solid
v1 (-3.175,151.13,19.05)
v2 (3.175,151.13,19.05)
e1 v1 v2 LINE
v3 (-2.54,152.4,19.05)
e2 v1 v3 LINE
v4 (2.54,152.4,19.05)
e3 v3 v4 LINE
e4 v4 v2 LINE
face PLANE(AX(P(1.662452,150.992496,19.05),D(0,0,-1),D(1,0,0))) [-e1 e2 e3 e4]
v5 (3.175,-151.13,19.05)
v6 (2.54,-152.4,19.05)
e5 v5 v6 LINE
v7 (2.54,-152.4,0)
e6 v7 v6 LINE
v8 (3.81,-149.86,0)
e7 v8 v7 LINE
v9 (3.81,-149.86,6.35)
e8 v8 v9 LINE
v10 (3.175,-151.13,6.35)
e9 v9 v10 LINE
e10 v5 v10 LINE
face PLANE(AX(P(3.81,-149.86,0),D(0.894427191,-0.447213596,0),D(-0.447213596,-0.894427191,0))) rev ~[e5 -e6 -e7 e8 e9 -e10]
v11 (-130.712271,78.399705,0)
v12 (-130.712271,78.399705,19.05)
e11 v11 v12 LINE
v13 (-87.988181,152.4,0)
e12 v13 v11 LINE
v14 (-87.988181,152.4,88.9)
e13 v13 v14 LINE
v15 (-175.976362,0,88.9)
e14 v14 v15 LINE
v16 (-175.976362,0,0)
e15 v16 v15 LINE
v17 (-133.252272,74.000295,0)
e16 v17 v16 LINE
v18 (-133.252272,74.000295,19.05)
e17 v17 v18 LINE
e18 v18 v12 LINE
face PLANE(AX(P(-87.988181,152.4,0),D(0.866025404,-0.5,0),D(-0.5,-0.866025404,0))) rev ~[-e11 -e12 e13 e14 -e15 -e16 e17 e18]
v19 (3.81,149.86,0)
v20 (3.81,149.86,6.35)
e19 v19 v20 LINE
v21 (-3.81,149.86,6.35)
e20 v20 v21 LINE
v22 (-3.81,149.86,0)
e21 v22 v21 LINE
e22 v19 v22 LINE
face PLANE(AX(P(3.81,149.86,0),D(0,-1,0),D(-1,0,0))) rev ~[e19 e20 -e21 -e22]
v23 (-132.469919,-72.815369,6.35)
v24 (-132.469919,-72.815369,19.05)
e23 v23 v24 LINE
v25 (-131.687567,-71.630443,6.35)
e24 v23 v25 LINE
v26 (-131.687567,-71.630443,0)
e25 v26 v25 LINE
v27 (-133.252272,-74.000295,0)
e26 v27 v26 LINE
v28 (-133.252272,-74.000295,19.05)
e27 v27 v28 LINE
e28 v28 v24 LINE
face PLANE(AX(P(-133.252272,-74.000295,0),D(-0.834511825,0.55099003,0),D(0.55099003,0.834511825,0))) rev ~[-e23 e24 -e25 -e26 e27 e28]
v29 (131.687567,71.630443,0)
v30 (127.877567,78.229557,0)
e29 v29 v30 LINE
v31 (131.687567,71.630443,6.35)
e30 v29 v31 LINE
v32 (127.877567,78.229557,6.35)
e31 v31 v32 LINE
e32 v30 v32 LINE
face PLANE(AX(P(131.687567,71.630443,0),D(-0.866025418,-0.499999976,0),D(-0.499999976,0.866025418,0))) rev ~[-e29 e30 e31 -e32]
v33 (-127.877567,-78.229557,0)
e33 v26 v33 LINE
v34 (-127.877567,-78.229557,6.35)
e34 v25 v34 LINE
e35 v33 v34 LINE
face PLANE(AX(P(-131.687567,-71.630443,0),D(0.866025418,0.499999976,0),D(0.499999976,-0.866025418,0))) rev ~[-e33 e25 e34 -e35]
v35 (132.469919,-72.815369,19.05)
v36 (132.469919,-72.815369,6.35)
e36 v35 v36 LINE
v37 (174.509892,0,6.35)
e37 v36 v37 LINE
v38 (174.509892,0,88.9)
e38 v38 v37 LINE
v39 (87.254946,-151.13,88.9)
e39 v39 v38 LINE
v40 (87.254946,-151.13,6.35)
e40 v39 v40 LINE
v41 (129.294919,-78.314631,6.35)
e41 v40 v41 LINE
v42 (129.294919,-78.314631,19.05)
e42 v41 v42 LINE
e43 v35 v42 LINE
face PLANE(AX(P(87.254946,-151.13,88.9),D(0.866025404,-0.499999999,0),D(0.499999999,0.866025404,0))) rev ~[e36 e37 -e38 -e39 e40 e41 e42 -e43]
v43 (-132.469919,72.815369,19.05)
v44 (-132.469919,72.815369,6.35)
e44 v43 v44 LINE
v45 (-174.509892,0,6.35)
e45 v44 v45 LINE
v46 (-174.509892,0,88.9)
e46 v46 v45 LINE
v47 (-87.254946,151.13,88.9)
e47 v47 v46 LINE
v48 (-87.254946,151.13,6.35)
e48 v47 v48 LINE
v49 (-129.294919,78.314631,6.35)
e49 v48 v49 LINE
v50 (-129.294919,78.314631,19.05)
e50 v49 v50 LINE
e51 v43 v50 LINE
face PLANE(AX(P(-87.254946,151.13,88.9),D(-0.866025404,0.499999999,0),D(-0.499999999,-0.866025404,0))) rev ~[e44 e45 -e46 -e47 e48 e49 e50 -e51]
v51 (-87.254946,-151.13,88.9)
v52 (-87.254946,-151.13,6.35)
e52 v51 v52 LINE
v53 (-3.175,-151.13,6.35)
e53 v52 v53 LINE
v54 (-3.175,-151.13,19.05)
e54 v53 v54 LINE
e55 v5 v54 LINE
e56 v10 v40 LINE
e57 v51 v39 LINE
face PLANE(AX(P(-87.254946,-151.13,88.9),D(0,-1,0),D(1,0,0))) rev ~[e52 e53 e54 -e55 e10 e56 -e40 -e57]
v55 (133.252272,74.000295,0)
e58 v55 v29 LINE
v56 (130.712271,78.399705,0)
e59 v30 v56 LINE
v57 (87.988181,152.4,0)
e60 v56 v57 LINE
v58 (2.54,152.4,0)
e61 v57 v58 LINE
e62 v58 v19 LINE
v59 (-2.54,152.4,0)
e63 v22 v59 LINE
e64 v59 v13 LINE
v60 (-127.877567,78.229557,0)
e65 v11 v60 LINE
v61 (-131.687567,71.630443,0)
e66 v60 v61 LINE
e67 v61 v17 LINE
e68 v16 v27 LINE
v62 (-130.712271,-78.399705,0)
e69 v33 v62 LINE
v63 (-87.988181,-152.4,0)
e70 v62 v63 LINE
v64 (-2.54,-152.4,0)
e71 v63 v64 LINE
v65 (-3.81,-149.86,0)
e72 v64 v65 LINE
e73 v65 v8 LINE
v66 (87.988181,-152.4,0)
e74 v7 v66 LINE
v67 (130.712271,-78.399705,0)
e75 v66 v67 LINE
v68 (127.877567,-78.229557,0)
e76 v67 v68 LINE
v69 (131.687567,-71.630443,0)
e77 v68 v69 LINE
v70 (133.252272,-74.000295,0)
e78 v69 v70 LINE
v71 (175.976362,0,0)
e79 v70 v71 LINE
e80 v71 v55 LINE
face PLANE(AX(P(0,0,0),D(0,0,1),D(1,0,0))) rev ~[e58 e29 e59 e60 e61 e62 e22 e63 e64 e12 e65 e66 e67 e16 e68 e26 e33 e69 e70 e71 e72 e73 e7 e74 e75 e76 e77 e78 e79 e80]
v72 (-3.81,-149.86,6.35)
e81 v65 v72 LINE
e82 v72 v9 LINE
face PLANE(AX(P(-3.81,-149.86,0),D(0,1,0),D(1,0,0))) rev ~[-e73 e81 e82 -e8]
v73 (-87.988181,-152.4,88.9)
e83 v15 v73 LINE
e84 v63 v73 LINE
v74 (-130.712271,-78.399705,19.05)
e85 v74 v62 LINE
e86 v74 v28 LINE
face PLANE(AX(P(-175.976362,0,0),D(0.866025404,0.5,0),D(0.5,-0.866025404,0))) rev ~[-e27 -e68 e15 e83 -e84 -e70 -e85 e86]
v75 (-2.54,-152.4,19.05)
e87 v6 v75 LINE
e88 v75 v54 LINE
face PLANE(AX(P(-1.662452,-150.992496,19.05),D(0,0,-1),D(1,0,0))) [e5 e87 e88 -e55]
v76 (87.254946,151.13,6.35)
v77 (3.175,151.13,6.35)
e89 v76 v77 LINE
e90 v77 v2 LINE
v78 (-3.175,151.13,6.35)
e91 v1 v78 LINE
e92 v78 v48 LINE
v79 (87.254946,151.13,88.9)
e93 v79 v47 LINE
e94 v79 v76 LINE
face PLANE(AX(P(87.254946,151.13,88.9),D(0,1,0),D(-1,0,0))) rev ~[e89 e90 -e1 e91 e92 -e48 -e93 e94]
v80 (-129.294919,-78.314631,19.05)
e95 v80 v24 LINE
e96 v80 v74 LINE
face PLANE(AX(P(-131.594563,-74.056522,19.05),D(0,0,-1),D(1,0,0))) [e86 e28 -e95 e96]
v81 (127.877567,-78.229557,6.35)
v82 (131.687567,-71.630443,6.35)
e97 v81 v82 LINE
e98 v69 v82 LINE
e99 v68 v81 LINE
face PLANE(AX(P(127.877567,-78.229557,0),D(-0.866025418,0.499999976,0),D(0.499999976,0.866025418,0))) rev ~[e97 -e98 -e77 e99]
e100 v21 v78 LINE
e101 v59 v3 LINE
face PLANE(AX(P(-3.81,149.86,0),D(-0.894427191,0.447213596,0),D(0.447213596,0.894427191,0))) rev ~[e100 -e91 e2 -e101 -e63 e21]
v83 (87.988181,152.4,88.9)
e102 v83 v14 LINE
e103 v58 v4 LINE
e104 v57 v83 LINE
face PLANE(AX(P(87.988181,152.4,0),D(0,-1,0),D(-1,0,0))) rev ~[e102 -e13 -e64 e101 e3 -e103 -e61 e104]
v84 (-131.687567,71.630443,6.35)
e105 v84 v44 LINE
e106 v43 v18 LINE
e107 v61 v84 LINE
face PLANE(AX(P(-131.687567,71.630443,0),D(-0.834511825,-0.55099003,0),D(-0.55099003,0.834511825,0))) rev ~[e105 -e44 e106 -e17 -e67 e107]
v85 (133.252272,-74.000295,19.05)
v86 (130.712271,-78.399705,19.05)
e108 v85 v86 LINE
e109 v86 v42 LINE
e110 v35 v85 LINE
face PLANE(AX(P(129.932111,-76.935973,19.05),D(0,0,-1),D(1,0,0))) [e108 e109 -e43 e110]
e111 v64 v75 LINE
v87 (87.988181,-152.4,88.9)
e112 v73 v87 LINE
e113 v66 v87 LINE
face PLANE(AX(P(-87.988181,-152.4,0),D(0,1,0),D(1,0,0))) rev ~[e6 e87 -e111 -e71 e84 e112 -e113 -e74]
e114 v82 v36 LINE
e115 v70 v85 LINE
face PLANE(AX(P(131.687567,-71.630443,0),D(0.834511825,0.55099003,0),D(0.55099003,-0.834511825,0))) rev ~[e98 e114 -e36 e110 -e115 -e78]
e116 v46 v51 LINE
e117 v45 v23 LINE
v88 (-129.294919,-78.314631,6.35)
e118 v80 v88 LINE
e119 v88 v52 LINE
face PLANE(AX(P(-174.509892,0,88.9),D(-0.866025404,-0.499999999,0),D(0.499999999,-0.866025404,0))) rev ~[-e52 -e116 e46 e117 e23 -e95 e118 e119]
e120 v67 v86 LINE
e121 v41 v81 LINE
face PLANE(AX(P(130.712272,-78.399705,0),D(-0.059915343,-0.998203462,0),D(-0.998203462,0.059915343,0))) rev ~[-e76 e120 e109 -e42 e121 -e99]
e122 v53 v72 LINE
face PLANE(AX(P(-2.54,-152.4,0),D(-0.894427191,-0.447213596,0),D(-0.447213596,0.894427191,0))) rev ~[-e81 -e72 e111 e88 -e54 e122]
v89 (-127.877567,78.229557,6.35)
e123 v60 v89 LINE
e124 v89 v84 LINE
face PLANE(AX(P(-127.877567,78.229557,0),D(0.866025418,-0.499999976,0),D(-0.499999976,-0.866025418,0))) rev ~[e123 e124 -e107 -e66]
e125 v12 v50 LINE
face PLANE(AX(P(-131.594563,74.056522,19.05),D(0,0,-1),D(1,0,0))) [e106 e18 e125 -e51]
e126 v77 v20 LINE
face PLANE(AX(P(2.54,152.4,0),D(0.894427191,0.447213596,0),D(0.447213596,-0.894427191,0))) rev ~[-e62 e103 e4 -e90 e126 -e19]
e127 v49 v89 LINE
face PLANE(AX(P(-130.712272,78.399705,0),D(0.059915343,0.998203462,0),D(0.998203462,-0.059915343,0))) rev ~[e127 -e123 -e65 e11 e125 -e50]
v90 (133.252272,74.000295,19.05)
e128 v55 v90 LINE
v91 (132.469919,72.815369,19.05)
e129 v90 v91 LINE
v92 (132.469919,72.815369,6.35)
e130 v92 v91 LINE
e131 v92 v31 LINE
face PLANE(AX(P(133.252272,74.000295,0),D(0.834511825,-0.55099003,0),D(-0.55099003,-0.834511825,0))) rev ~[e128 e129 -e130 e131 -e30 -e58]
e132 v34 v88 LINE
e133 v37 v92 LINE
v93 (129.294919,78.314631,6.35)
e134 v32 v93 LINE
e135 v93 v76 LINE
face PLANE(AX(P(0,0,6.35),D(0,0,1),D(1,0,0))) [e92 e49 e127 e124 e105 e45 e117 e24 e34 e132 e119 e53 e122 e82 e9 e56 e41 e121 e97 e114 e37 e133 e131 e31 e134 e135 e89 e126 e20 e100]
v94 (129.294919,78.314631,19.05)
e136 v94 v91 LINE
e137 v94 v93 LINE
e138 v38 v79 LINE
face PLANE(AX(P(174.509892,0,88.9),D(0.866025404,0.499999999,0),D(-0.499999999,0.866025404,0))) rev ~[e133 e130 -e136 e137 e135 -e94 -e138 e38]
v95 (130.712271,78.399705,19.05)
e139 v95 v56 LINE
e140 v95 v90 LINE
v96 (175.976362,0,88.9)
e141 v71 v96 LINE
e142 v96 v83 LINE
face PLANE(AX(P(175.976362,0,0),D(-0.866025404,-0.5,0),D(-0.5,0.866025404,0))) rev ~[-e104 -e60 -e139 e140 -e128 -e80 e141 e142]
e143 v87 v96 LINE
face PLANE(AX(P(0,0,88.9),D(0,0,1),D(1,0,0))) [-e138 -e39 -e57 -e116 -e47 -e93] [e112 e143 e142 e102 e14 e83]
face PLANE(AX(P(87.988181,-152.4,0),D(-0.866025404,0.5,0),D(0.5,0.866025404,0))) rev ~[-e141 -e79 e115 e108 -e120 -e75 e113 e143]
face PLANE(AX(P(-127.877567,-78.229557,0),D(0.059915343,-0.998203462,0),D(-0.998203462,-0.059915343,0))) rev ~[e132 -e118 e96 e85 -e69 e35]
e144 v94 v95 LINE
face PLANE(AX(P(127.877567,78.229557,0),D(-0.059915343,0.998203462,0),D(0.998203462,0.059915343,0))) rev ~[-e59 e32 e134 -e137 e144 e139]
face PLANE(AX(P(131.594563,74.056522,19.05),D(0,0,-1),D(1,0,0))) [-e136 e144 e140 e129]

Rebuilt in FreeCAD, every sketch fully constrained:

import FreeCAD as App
import Part
import Sketcher
Q = App.Units.Quantity

doc = App.newDocument("Part")
params = doc.addObject("Spreadsheet::Sheet", "Params")
for row, (alias, value) in enumerate([
    ("pad1_length", "3.5 in"),
    ("sketch2_width", "0.3 in"),
    ("sketch2_width2", "0.2 in"),
    ("sketch2_length", "0.2 in"),
    ("sketch2_length2", "0.3 in"),
    ("pocket1_length", "0.75 in"),
    ("pocket2_length", "3.25 in"),
], start=1):
    params.set(f"A{row}", alias)
    params.set(f"B{row}", "=" + value)
    params.setAlias(f"B{row}", alias)

body = doc.addObject("PartDesign::Body", "Body")

# Sketch on XY plane
sketch1 = body.newObject("Sketcher::SketchObject", "Sketch")
sketch1.AttachmentSupport = (doc.getObject("XY_Plane"), [""])
sketch1.MapMode = "FlatFace"
sketch1.addGeometry(Part.LineSegment(App.Vector(-87.988181, -152.4, 0), App.Vector(87.988181, -152.4, 0)), False)
sketch1.addGeometry(Part.LineSegment(App.Vector(87.988181, -152.4, 0), App.Vector(175.976362, 0, 0)), False)
sketch1.addGeometry(Part.LineSegment(App.Vector(175.976362, 0, 0), App.Vector(87.988181, 152.4, 0)), False)
sketch1.addGeometry(Part.LineSegment(App.Vector(87.988181, 152.4, 0), App.Vector(-87.988181, 152.4, 0)), False)
sketch1.addGeometry(Part.LineSegment(App.Vector(-87.988181, 152.4, 0), App.Vector(-175.976362, 0, 0)), False)
sketch1.addGeometry(Part.LineSegment(App.Vector(-175.976362, 0, 0), App.Vector(-87.988181, -152.4, 0)), False)
sketch1.addConstraint(Sketcher.Constraint("Coincident", 0, 2, 1, 1))
sketch1.addConstraint(Sketcher.Constraint("Coincident", 1, 2, 2, 1))
sketch1.addConstraint(Sketcher.Constraint("Coincident", 2, 2, 3, 1))
sketch1.addConstraint(Sketcher.Constraint("Coincident", 3, 2, 4, 1))
sketch1.addConstraint(Sketcher.Constraint("Coincident", 4, 2, 5, 1))
sketch1.addConstraint(Sketcher.Constraint("Coincident", 5, 2, 0, 1))
sketch1.addConstraint(Sketcher.Constraint("Horizontal", 0))
sketch1.addConstraint(Sketcher.Constraint("Horizontal", 3))
sketch1.addConstraint(Sketcher.Constraint("Symmetric", 0, 2, 3, 2, -1, 1))
sketch1.addConstraint(Sketcher.Constraint("Symmetric", 1, 2, 4, 2, -1, 1))
sketch1.addConstraint(Sketcher.Constraint("PointOnObject", 1, 2, -1))
sketch1.addConstraint(Sketcher.Constraint("Parallel", 2, 5))
sketch1.addConstraint(Sketcher.Constraint("Vertical", 0, 2, 2, 2))
sketch1.addConstraint(Sketcher.Constraint("DistanceY", 0, 2, -1, 1, Q("6 in")))
sketch1.addConstraint(Sketcher.Constraint("Angle", 1, Q("60 deg")))
sketch1.addConstraint(Sketcher.Constraint("DistanceX", 0, 1, 0, 2, Q("175.976362 mm")))
pad1 = body.newObject("PartDesign::Pad", "Pad")
pad1.Profile = sketch1
pad1.setExpression("Length", "Params.pad1_length")

# Sketch on XY plane
sketch2 = body.newObject("Sketcher::SketchObject", "Sketch001")
sketch2.AttachmentSupport = (doc.getObject("XY_Plane"), [""])
sketch2.MapMode = "FlatFace"
sketch2.addGeometry(Part.LineSegment(App.Vector(-131.687567, 71.630443, 0), App.Vector(-133.252272, 74.000295, 0)), False)
sketch2.addGeometry(Part.LineSegment(App.Vector(-133.252272, 74.000295, 0), App.Vector(-130.712272, 78.399705, 0)), False)
sketch2.addGeometry(Part.LineSegment(App.Vector(-130.712272, 78.399705, 0), App.Vector(-127.877567, 78.229557, 0)), False)
sketch2.addGeometry(Part.LineSegment(App.Vector(-127.877567, 78.229557, 0), App.Vector(-131.687567, 71.630443, 0)), False)
sketch2.addGeometry(Part.LineSegment(App.Vector(-131.687567, -71.630443, 0), App.Vector(-127.877567, -78.229557, 0)), False)
sketch2.addGeometry(Part.LineSegment(App.Vector(-127.877567, -78.229557, 0), App.Vector(-130.712272, -78.399705, 0)), False)
sketch2.addGeometry(Part.LineSegment(App.Vector(-130.712272, -78.399705, 0), App.Vector(-133.252272, -74.000295, 0)), False)
sketch2.addGeometry(Part.LineSegment(App.Vector(-133.252272, -74.000295, 0), App.Vector(-131.687567, -71.630443, 0)), False)
sketch2.addGeometry(Part.LineSegment(App.Vector(-2.54, -152.4, 0), App.Vector(-3.81, -149.86, 0)), False)
sketch2.addGeometry(Part.LineSegment(App.Vector(-3.81, -149.86, 0), App.Vector(3.81, -149.86, 0)), False)
sketch2.addGeometry(Part.LineSegment(App.Vector(3.81, -149.86, 0), App.Vector(2.54, -152.4, 0)), False)
sketch2.addGeometry(Part.LineSegment(App.Vector(2.54, -152.4, 0), App.Vector(-2.54, -152.4, 0)), False)
sketch2.addGeometry(Part.LineSegment(App.Vector(127.877567, -78.229557, 0), App.Vector(131.687567, -71.630443, 0)), False)
sketch2.addGeometry(Part.LineSegment(App.Vector(131.687567, -71.630443, 0), App.Vector(133.252272, -74.000295, 0)), False)
sketch2.addGeometry(Part.LineSegment(App.Vector(133.252272, -74.000295, 0), App.Vector(130.712272, -78.399705, 0)), False)
sketch2.addGeometry(Part.LineSegment(App.Vector(130.712272, -78.399705, 0), App.Vector(127.877567, -78.229557, 0)), False)
sketch2.addGeometry(Part.LineSegment(App.Vector(131.687567, 71.630443, 0), App.Vector(127.877567, 78.229557, 0)), False)
sketch2.addGeometry(Part.LineSegment(App.Vector(127.877567, 78.229557, 0), App.Vector(130.712272, 78.399705, 0)), False)
sketch2.addGeometry(Part.LineSegment(App.Vector(130.712272, 78.399705, 0), App.Vector(133.252272, 74.000295, 0)), False)
sketch2.addGeometry(Part.LineSegment(App.Vector(133.252272, 74.000295, 0), App.Vector(131.687567, 71.630443, 0)), False)
sketch2.addGeometry(Part.LineSegment(App.Vector(3.81, 149.86, 0), App.Vector(-3.81, 149.86, 0)), False)
sketch2.addGeometry(Part.LineSegment(App.Vector(-3.81, 149.86, 0), App.Vector(-2.54, 152.4, 0)), False)
sketch2.addGeometry(Part.LineSegment(App.Vector(-2.54, 152.4, 0), App.Vector(2.54, 152.4, 0)), False)
sketch2.addGeometry(Part.LineSegment(App.Vector(2.54, 152.4, 0), App.Vector(3.81, 149.86, 0)), False)
sketch2.addConstraint(Sketcher.Constraint("Coincident", 0, 2, 1, 1))
sketch2.addConstraint(Sketcher.Constraint("Coincident", 1, 2, 2, 1))
sketch2.addConstraint(Sketcher.Constraint("Coincident", 2, 2, 3, 1))
sketch2.addConstraint(Sketcher.Constraint("Coincident", 3, 2, 0, 1))
sketch2.addConstraint(Sketcher.Constraint("Coincident", 4, 2, 5, 1))
sketch2.addConstraint(Sketcher.Constraint("Coincident", 5, 2, 6, 1))
sketch2.addConstraint(Sketcher.Constraint("Coincident", 6, 2, 7, 1))
sketch2.addConstraint(Sketcher.Constraint("Coincident", 7, 2, 4, 1))
sketch2.addConstraint(Sketcher.Constraint("Coincident", 8, 2, 9, 1))
sketch2.addConstraint(Sketcher.Constraint("Coincident", 9, 2, 10, 1))
sketch2.addConstraint(Sketcher.Constraint("Coincident", 10, 2, 11, 1))
sketch2.addConstraint(Sketcher.Constraint("Coincident", 11, 2, 8, 1))
sketch2.addConstraint(Sketcher.Constraint("Coincident", 12, 2, 13, 1))
sketch2.addConstraint(Sketcher.Constraint("Coincident", 13, 2, 14, 1))
sketch2.addConstraint(Sketcher.Constraint("Coincident", 14, 2, 15, 1))
sketch2.addConstraint(Sketcher.Constraint("Coincident", 15, 2, 12, 1))
sketch2.addConstraint(Sketcher.Constraint("Coincident", 16, 2, 17, 1))
sketch2.addConstraint(Sketcher.Constraint("Coincident", 17, 2, 18, 1))
sketch2.addConstraint(Sketcher.Constraint("Coincident", 18, 2, 19, 1))
sketch2.addConstraint(Sketcher.Constraint("Coincident", 19, 2, 16, 1))
sketch2.addConstraint(Sketcher.Constraint("Coincident", 20, 2, 21, 1))
sketch2.addConstraint(Sketcher.Constraint("Coincident", 21, 2, 22, 1))
sketch2.addConstraint(Sketcher.Constraint("Coincident", 22, 2, 23, 1))
sketch2.addConstraint(Sketcher.Constraint("Coincident", 23, 2, 20, 1))
sketch2.addConstraint(Sketcher.Constraint("Horizontal", 9))
sketch2.addConstraint(Sketcher.Constraint("Horizontal", 11))
sketch2.addConstraint(Sketcher.Constraint("Horizontal", 20))
sketch2.addConstraint(Sketcher.Constraint("Horizontal", 22))
sketch2.addConstraint(Sketcher.Constraint("Symmetric", 3, 2, 12, 2, -1, 1))
sketch2.addConstraint(Sketcher.Constraint("Symmetric", 0, 2, 13, 2, -1, 1))
sketch2.addConstraint(Sketcher.Constraint("Symmetric", 1, 2, 14, 2, -1, 1))
sketch2.addConstraint(Sketcher.Constraint("Symmetric", 2, 2, 15, 2, -1, 1))
sketch2.addConstraint(Sketcher.Constraint("Symmetric", 4, 2, 16, 2, -1, 1))
sketch2.addConstraint(Sketcher.Constraint("Symmetric", 5, 2, 17, 2, -1, 1))
sketch2.addConstraint(Sketcher.Constraint("Symmetric", 6, 2, 18, 2, -1, 1))
sketch2.addConstraint(Sketcher.Constraint("Symmetric", 7, 2, 19, 2, -1, 1))
sketch2.addConstraint(Sketcher.Constraint("Symmetric", 9, 2, 20, 2, -1, 1))
sketch2.addConstraint(Sketcher.Constraint("Symmetric", 10, 2, 21, 2, -1, 1))
sketch2.addConstraint(Sketcher.Constraint("Symmetric", 7, 2, 12, 2, -2))
sketch2.addConstraint(Sketcher.Constraint("Symmetric", 6, 2, 13, 2, -2))
sketch2.addConstraint(Sketcher.Constraint("Symmetric", 5, 2, 14, 2, -2))
sketch2.addConstraint(Sketcher.Constraint("Symmetric", 4, 2, 15, 2, -2))
sketch2.addConstraint(Sketcher.Constraint("Parallel", 1, 3))
sketch2.addConstraint(Sketcher.Constraint("Parallel", 8, 23))
sketch2.addConstraint(Sketcher.Constraint("Vertical", 8, 2, 20, 2))
sketch2.addConstraint(Sketcher.Constraint("Vertical", 11, 2, 21, 2))
sketch2.addConstraint(Sketcher.Constraint("Vertical", 10, 2, 22, 2))
sketch2.addConstraint(Sketcher.Constraint("Equal", 0, 2))
sketch2.addConstraint(Sketcher.Constraint("Equal", 7, 8))
sketch2.addConstraint(Sketcher.Constraint("DistanceX", 9, 1, 9, 2, Q("0.3 in")))
sketch2.addConstraint(Sketcher.Constraint("DistanceX", 11, 2, 11, 1, Q("0.2 in")))
sketch2.addConstraint(Sketcher.Constraint("DistanceY", 10, 2, -1, 1, Q("6 in")))
sketch2.addConstraint(Sketcher.Constraint("Angle", 1, Q("60.000005 deg")))
sketch2.addConstraint(Sketcher.Constraint("DistanceY", 5, 2, 0, 2, Q("6 in")))
sketch2.addConstraint(Sketcher.Constraint("Distance", 1, Q("0.2 in")))
sketch2.addConstraint(Sketcher.Constraint("Distance", 3, Q("0.3 in")))
sketch2.addConstraint(Sketcher.Constraint("DistanceY", 8, 2, -1, 1, Q("5.9 in")))
sketch2.addConstraint(Sketcher.Constraint("DistanceX", 0, 2, -1, 1, Q("133.252272 mm")))
sketch2.setExpression("Constraints[49]", "Params.sketch2_width")
sketch2.setExpression("Constraints[50]", "Params.sketch2_width2")
sketch2.setExpression("Constraints[54]", "Params.sketch2_length")
sketch2.setExpression("Constraints[55]", "Params.sketch2_length2")
pocket1 = body.newObject("PartDesign::Pocket", "Pocket")
pocket1.Profile = sketch2
pocket1.setExpression("Length", "Params.pocket1_length")
pocket1.Reversed = True

# Sketch on XY plane
sketch3 = body.newObject("Sketcher::SketchObject", "Sketch002")
sketch3.AttachmentSupport = (doc.getObject("XY_Plane"), [""])
sketch3.MapMode = "FlatFace"
sketch3.AttachmentOffset = App.Placement(App.Vector(0, 0, 3.5 * 25.4), App.Rotation())
sketch3.addGeometry(Part.LineSegment(App.Vector(-87.254946, -151.13, 0), App.Vector(87.254946, -151.13, 0)), False)
sketch3.addGeometry(Part.LineSegment(App.Vector(87.254946, -151.13, 0), App.Vector(174.509892, 0, 0)), False)
sketch3.addGeometry(Part.LineSegment(App.Vector(174.509892, 0, 0), App.Vector(87.254946, 151.13, 0)), False)
sketch3.addGeometry(Part.LineSegment(App.Vector(87.254946, 151.13, 0), App.Vector(-87.254946, 151.13, 0)), False)
sketch3.addGeometry(Part.LineSegment(App.Vector(-87.254946, 151.13, 0), App.Vector(-174.509892, 0, 0)), False)
sketch3.addGeometry(Part.LineSegment(App.Vector(-174.509892, 0, 0), App.Vector(-87.254946, -151.13, 0)), False)
sketch3.addConstraint(Sketcher.Constraint("Coincident", 0, 2, 1, 1))
sketch3.addConstraint(Sketcher.Constraint("Coincident", 1, 2, 2, 1))
sketch3.addConstraint(Sketcher.Constraint("Coincident", 2, 2, 3, 1))
sketch3.addConstraint(Sketcher.Constraint("Coincident", 3, 2, 4, 1))
sketch3.addConstraint(Sketcher.Constraint("Coincident", 4, 2, 5, 1))
sketch3.addConstraint(Sketcher.Constraint("Coincident", 5, 2, 0, 1))
sketch3.addConstraint(Sketcher.Constraint("Horizontal", 0))
sketch3.addConstraint(Sketcher.Constraint("Horizontal", 3))
sketch3.addConstraint(Sketcher.Constraint("Symmetric", 0, 2, 3, 2, -1, 1))
sketch3.addConstraint(Sketcher.Constraint("Symmetric", 1, 2, 4, 2, -1, 1))
sketch3.addConstraint(Sketcher.Constraint("PointOnObject", 1, 2, -1))
sketch3.addConstraint(Sketcher.Constraint("Parallel", 2, 5))
sketch3.addConstraint(Sketcher.Constraint("Vertical", 0, 2, 2, 2))
sketch3.addConstraint(Sketcher.Constraint("Angle", 1, Q("60 deg")))
sketch3.addConstraint(Sketcher.Constraint("DistanceY", 0, 2, 2, 2, Q("11.9 in")))
sketch3.addConstraint(Sketcher.Constraint("DistanceX", 0, 1, 0, 2, Q("174.509892 mm")))
pocket2 = body.newObject("PartDesign::Pocket", "Pocket001")
pocket2.Profile = sketch3
pocket2.setExpression("Length", "Params.pocket2_length")

doc.recompute()
